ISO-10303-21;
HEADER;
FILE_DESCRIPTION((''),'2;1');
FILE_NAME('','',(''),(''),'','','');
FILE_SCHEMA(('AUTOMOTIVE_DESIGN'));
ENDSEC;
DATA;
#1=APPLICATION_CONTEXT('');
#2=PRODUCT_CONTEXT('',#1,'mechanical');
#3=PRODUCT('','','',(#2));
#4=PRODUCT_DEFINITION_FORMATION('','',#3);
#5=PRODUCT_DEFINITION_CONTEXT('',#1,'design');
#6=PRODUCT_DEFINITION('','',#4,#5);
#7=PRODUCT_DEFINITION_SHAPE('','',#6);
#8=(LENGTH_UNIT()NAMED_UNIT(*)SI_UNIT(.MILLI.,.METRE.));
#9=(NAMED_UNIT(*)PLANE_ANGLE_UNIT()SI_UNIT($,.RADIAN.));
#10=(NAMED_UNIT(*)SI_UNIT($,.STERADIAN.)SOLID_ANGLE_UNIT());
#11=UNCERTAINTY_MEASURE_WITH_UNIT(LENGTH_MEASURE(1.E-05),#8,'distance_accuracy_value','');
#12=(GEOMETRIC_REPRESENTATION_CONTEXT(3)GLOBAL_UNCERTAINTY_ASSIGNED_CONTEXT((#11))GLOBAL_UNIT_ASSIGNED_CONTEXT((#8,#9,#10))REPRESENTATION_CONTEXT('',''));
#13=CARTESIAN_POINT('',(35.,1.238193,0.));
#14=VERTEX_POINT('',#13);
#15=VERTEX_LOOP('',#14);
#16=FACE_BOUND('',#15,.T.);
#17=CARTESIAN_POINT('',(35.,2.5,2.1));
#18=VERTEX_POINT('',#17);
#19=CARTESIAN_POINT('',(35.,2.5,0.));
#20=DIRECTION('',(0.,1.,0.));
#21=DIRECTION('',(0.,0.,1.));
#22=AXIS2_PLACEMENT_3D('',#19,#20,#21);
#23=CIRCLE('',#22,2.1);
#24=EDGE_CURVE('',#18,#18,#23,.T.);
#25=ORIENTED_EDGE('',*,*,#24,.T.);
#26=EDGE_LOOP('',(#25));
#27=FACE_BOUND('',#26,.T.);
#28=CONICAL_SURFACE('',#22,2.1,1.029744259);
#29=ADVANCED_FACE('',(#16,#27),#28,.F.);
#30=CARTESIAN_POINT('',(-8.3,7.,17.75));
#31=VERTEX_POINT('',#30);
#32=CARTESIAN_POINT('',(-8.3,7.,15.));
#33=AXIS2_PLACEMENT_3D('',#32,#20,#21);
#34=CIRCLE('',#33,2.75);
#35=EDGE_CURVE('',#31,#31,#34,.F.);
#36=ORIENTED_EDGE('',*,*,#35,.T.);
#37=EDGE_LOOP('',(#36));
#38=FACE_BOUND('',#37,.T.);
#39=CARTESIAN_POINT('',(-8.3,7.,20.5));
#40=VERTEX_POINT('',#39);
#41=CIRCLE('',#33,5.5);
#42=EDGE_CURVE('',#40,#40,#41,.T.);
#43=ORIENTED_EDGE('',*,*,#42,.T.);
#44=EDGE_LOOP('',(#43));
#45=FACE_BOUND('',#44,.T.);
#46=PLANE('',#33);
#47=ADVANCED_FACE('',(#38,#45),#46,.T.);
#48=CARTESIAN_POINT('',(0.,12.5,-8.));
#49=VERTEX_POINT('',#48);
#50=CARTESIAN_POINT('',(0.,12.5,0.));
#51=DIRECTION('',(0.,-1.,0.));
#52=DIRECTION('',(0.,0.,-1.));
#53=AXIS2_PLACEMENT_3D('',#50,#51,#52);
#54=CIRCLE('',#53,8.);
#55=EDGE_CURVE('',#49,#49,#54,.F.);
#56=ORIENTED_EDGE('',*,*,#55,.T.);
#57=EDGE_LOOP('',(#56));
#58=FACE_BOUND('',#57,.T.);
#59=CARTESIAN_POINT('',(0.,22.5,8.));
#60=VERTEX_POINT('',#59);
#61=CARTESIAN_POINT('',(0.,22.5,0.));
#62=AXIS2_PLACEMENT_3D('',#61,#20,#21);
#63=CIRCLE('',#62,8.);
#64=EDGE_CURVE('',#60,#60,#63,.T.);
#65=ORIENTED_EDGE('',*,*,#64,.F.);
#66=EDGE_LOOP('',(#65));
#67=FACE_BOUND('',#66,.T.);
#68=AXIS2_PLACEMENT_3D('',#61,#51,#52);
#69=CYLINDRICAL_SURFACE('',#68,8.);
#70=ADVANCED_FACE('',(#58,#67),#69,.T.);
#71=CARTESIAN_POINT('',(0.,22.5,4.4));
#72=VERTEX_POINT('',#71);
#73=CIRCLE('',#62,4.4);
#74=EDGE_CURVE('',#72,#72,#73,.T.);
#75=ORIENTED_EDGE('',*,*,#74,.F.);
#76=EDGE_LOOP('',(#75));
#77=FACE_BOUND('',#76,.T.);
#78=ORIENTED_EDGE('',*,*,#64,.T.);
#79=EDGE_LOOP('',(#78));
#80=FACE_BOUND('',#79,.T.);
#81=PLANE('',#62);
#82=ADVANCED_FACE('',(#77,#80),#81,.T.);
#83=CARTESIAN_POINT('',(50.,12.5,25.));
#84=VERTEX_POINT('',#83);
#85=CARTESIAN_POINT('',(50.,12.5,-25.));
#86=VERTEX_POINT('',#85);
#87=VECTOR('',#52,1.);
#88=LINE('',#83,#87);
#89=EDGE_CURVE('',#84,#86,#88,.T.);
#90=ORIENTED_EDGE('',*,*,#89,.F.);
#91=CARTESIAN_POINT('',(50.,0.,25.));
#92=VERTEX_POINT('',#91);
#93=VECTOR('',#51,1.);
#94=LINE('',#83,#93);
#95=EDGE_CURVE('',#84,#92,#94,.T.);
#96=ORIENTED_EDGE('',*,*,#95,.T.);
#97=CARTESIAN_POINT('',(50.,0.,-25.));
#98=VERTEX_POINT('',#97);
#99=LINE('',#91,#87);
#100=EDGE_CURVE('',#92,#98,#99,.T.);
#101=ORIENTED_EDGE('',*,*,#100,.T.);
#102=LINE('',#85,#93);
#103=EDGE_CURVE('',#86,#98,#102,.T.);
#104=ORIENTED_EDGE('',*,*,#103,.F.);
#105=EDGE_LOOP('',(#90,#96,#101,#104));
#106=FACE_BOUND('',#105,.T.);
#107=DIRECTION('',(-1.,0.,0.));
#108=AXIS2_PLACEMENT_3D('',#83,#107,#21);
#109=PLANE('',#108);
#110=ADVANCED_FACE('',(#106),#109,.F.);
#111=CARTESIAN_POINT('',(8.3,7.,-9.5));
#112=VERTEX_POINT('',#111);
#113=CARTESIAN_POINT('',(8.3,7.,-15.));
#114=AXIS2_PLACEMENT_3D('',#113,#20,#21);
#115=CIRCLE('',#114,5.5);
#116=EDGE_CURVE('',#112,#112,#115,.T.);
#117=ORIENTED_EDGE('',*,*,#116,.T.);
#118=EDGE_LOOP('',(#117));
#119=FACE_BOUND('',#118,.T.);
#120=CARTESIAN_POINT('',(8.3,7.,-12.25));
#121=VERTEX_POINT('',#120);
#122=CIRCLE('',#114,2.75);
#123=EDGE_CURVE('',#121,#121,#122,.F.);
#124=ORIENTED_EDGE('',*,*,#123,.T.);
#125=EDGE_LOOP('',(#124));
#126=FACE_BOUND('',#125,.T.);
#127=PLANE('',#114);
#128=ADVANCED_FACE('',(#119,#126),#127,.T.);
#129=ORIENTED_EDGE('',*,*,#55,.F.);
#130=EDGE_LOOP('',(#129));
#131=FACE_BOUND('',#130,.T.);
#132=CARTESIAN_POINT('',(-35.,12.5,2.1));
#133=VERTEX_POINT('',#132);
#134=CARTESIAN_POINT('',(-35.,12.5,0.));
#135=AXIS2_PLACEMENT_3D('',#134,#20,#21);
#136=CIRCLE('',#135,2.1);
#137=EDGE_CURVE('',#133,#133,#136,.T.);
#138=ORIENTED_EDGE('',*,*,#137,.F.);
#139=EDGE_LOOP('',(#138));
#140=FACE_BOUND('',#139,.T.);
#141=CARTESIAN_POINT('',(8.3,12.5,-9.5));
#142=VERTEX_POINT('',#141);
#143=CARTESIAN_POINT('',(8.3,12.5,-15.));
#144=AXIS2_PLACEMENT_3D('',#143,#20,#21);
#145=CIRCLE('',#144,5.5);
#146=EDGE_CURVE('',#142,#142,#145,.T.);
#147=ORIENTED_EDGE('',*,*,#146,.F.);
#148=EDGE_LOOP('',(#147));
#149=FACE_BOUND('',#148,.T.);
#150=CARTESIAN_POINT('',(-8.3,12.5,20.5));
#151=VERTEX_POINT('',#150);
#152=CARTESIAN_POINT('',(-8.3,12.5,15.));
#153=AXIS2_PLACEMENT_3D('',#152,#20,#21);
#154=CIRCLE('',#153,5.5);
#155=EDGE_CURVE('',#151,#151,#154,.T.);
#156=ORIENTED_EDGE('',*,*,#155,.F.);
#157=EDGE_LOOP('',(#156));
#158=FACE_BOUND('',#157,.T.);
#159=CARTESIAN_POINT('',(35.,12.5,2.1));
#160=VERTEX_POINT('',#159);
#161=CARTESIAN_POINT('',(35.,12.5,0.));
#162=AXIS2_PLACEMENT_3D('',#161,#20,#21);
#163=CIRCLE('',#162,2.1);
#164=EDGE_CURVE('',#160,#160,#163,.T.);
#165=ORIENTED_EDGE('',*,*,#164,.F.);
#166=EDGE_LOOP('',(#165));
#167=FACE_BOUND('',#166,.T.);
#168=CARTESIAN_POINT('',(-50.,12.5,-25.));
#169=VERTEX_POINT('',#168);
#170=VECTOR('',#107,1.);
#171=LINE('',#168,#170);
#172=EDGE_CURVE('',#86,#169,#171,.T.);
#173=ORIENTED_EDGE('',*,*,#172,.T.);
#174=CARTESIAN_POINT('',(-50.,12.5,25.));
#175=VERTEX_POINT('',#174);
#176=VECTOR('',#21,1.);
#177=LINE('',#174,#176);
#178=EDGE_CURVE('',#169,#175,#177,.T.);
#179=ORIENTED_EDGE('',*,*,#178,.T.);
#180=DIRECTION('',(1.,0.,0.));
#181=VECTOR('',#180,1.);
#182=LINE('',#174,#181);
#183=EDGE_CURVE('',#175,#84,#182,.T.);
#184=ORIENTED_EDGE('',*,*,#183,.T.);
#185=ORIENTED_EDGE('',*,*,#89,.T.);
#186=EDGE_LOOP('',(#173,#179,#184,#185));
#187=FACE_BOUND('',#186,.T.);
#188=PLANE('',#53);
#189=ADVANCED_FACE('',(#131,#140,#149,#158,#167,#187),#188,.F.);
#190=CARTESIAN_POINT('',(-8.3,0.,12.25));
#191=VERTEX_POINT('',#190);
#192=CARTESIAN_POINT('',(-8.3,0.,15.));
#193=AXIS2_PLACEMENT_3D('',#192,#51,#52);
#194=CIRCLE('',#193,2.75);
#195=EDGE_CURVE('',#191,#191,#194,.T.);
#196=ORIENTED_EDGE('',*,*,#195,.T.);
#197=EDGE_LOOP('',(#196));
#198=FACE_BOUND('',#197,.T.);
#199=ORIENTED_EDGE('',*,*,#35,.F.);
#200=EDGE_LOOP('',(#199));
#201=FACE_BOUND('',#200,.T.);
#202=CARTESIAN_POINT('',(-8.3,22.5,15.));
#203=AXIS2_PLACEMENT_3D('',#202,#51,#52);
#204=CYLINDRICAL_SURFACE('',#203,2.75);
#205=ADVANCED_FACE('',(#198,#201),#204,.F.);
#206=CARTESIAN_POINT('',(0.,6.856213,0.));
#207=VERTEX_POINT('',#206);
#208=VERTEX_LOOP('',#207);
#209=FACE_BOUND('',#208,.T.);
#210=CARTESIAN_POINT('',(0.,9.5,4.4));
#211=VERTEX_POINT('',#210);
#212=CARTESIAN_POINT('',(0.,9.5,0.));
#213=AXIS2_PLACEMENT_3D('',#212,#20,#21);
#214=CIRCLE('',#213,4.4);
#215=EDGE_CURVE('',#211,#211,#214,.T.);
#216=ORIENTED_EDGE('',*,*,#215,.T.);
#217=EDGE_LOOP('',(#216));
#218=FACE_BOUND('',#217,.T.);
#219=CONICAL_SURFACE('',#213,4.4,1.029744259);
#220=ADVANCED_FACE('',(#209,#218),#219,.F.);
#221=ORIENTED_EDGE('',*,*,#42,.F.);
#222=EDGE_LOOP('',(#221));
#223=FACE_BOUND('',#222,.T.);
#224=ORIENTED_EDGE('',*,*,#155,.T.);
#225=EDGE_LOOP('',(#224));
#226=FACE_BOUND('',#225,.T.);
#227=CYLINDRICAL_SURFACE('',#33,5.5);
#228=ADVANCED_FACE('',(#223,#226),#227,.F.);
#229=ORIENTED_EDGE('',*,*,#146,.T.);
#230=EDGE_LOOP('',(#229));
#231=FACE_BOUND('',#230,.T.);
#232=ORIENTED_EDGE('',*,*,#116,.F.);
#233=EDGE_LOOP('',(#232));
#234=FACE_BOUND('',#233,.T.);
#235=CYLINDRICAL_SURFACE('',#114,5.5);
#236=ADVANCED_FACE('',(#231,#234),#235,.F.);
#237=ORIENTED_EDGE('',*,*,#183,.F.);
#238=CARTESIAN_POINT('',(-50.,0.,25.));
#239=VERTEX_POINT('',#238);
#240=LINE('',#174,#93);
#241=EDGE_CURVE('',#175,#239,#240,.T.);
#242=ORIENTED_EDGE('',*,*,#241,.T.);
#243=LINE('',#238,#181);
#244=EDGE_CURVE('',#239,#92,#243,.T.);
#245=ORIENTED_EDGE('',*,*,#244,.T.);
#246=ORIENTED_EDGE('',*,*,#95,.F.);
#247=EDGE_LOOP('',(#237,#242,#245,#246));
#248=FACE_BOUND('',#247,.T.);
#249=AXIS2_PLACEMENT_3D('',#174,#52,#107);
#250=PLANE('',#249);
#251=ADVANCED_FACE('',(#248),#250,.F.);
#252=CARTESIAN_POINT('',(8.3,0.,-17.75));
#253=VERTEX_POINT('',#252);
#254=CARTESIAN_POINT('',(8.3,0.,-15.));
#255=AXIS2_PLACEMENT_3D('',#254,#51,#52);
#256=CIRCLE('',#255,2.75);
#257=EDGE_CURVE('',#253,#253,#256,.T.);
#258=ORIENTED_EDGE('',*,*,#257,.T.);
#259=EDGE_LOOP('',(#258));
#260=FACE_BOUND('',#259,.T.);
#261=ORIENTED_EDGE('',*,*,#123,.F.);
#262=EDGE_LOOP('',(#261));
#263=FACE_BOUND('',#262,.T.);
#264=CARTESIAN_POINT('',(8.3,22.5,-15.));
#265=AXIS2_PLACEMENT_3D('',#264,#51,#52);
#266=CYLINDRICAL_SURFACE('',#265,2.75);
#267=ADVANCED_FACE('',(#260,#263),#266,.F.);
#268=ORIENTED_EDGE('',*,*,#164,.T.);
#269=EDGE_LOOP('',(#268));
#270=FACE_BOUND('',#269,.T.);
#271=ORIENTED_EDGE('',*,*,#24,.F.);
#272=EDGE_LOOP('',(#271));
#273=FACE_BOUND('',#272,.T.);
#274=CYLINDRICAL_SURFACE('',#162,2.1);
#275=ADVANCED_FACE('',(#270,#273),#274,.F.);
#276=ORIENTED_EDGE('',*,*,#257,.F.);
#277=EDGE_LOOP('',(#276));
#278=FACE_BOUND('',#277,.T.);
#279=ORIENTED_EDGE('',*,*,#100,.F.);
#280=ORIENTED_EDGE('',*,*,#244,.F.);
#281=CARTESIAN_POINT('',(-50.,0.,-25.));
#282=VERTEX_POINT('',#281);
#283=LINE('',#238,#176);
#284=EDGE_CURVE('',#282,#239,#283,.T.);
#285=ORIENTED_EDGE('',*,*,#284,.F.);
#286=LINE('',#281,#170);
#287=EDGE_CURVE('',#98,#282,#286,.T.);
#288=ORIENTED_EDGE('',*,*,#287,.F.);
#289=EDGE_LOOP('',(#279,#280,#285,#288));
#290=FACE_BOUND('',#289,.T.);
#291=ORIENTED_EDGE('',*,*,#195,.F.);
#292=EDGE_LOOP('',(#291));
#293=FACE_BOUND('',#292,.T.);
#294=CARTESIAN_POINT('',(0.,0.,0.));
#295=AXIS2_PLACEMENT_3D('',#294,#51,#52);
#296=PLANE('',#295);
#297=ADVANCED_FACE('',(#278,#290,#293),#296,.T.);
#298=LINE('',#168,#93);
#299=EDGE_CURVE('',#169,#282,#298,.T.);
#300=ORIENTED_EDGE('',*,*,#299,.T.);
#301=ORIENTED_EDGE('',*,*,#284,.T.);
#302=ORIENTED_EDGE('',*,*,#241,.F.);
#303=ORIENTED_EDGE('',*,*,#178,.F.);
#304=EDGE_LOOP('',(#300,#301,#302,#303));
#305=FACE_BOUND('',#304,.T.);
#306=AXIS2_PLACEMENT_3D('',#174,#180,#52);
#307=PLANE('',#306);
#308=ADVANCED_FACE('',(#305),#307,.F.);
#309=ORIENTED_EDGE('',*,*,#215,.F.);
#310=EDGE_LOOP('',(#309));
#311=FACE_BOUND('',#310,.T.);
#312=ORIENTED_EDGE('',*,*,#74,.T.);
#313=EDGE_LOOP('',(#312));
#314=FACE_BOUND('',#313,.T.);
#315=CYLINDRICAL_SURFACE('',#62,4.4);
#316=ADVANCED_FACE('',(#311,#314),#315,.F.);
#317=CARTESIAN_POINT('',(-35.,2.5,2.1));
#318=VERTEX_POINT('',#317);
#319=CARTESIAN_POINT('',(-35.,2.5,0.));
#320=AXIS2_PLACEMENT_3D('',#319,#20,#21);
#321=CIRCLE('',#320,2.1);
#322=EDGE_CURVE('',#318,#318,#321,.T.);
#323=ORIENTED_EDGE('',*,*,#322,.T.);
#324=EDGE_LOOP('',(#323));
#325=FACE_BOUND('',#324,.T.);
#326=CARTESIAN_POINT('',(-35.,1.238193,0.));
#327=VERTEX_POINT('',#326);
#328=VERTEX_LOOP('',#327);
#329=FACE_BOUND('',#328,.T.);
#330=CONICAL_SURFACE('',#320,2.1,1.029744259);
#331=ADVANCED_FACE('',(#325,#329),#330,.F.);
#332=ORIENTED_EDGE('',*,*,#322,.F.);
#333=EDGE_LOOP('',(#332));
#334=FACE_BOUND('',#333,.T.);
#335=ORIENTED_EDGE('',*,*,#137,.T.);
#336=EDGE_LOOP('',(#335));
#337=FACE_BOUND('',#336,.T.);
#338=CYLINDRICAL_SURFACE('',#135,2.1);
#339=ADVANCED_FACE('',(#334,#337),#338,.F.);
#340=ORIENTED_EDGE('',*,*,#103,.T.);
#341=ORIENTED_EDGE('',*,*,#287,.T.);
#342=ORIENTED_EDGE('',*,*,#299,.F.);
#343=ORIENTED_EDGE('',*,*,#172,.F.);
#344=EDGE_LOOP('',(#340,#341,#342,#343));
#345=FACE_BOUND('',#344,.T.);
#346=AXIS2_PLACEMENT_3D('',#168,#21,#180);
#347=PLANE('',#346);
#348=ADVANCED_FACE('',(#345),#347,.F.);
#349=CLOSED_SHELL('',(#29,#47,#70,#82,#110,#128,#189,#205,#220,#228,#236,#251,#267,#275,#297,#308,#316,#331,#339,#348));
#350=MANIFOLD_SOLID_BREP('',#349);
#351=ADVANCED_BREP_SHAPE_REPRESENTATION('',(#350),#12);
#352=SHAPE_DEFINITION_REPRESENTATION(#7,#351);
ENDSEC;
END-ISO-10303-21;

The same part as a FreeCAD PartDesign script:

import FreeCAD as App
import Part
import Sketcher

doc = App.newDocument("Part")
body = doc.addObject("PartDesign::Body", "Body")

# Sketch on XZ plane
sketch1 = body.newObject("Sketcher::SketchObject", "Sketch")
sketch1.AttachmentSupport = (doc.getObject("XZ_Plane"), [""])
sketch1.MapMode = "FlatFace"
sketch1.addGeometry([
    Part.LineSegment(App.Vector(-50, -25, 0), App.Vector(-50, 25, 0)),
    Part.LineSegment(App.Vector(-50, 25, 0), App.Vector(50, 25, 0)),
    Part.LineSegment(App.Vector(50, 25, 0), App.Vector(50, -25, 0)),
    Part.LineSegment(App.Vector(50, -25, 0), App.Vector(-50, -25, 0)),
], False)
sketch1.addConstraint([
    Sketcher.Constraint("Coincident", 0, 2, 1, 1),
    Sketcher.Constraint("Coincident", 1, 2, 2, 1),
    Sketcher.Constraint("Coincident", 2, 2, 3, 1),
    Sketcher.Constraint("Coincident", 3, 2, 0, 1),
    Sketcher.Constraint("Vertical", 0),
    Sketcher.Constraint("Horizontal", 1),
    Sketcher.Constraint("Vertical", 2),
    Sketcher.Constraint("Horizontal", 3),
    Sketcher.Constraint("Symmetric", 0, 2, 2, 2, -1, 1),
    Sketcher.Constraint("DistanceX", 1, 1, 1, 2, 100.0),
    Sketcher.Constraint("DistanceY", 0, 1, 0, 2, 50.0),
])
pad1 = body.newObject("PartDesign::Pad", "Pad")
pad1.Profile = sketch1
pad1.Length = 12.5
pad1.Reversed = True

# Sketch on XZ plane
sketch2 = body.newObject("Sketcher::SketchObject", "Sketch001")
sketch2.AttachmentSupport = (doc.getObject("XZ_Plane"), [""])
sketch2.MapMode = "FlatFace"
sketch2.AttachmentOffset = App.Placement(App.Vector(0, 0, -12.5), App.Rotation())
sketch2.addGeometry(Part.Circle(App.Vector(0, 0, 0), App.Vector(0, 0, 1), 8), False)
sketch2.addConstraint([
    Sketcher.Constraint("Coincident", 0, 3, -1, 1),
    Sketcher.Constraint("Diameter", 0, 16.0),
])
pad2 = body.newObject("PartDesign::Pad", "Pad001")
pad2.Profile = sketch2
pad2.Length = 10
pad2.Reversed = True

# Sketch on XZ plane
sketch3 = body.newObject("Sketcher::SketchObject", "Sketch002")
sketch3.AttachmentSupport = (doc.getObject("XZ_Plane"), [""])
sketch3.MapMode = "FlatFace"
sketch3.AttachmentOffset = App.Placement(App.Vector(0, 0, -22.5), App.Rotation())
sketch3.addGeometry(Part.Circle(App.Vector(0, 0, 0), App.Vector(0, 0, 1), 4.4), False)
sketch3.addConstraint([
    Sketcher.Constraint("Coincident", 0, 3, -1, 1),
    Sketcher.Constraint("Diameter", 0, 8.8),
])
doc.recompute()
hole = body.newObject("PartDesign::Hole", "Hole")
hole.Profile = sketch3
hole.ThreadType = "None"
hole.Diameter = 8.8
hole.DepthType = "Dimension"
hole.Depth = 13
hole.DrillPoint = "Angled"
hole.DrillPointAngle = 118
hole.Reversed = True

# Sketch on XZ plane
sketch4 = body.newObject("Sketcher::SketchObject", "Sketch003")
sketch4.AttachmentSupport = (doc.getObject("XZ_Plane"), [""])
sketch4.MapMode = "FlatFace"
sketch4.AttachmentOffset = App.Placement(App.Vector(0, 0, -12.5), App.Rotation())
sketch4.addGeometry([
    Part.Circle(App.Vector(-35, 0, 0), App.Vector(0, 0, 1), 2.1),
    Part.Circle(App.Vector(35, 0, 0), App.Vector(0, 0, 1), 2.1),
], False)
sketch4.addConstraint([
    Sketcher.Constraint("Equal", 0, 1),
    Sketcher.Constraint("Symmetric", 0, 3, 1, 3, -1, 1),
    Sketcher.Constraint("PointOnObject", 0, 3, -1),
    Sketcher.Constraint("Diameter", 0, 4.2),
    Sketcher.Constraint("DistanceX", 0, 3, -1, 1, 35.0),
])
doc.recompute()
hole2 = body.newObject("PartDesign::Hole", "Hole001")
hole2.Profile = sketch4
hole2.ThreadType = "None"
hole2.Diameter = 4.2
hole2.DepthType = "Dimension"
hole2.Depth = 10
hole2.DrillPoint = "Angled"
hole2.DrillPointAngle = 118
hole2.Reversed = True

# Sketch on XZ plane
sketch5 = body.newObject("Sketcher::SketchObject", "Sketch004")
sketch5.AttachmentSupport = (doc.getObject("XZ_Plane"), [""])
sketch5.MapMode = "FlatFace"
sketch5.addGeometry([
    Part.Circle(App.Vector(8.3, -15, 0), App.Vector(0, 0, 1), 2.8),
    Part.Circle(App.Vector(-8.3, 15, 0), App.Vector(0, 0, 1), 2.8),
], False)
sketch5.addConstraint([
    Sketcher.Constraint("Equal", 0, 1),
    Sketcher.Constraint("Symmetric", 0, 3, 1, 3, -1, 1),
    Sketcher.Constraint("Diameter", 0, 5.5),
    Sketcher.Constraint("DistanceY", 0, 3, -1, 1, 15.0),
    Sketcher.Constraint("DistanceX", -1, 1, 0, 3, 8.3),
])
pocket1 = body.newObject("PartDesign::Pocket", "Pocket")
pocket1.Profile = sketch5
pocket1.Type = "ThroughAll"

# Sketch on XZ plane
sketch6 = body.newObject("Sketcher::SketchObject", "Sketch005")
sketch6.AttachmentSupport = (doc.getObject("XZ_Plane"), [""])
sketch6.MapMode = "FlatFace"
sketch6.AttachmentOffset = App.Placement(App.Vector(0, 0, -12.5), App.Rotation())
sketch6.addGeometry([
    Part.Circle(App.Vector(8, -15, 0), App.Vector(0, 0, 1), 6),
    Part.Circle(App.Vector(-8, 15, 0), App.Vector(0, 0, 1), 6),
], False)
sketch6.addConstraint([
    Sketcher.Constraint("Equal", 0, 1),
    Sketcher.Constraint("Symmetric", 0, 3, 1, 3, -1, 1),
    Sketcher.Constraint("Diameter", 0, 11.0),
    Sketcher.Constraint("DistanceY", 0, 3, -1, 1, 15.0),
    Sketcher.Constraint("DistanceX", -1, 1, 0, 3, 8.3),
])
pocket2 = body.newObject("PartDesign::Pocket", "Pocket001")
pocket2.Profile = sketch6
pocket2.Length = 5.5
pocket2.Reversed = True

doc.recompute()
